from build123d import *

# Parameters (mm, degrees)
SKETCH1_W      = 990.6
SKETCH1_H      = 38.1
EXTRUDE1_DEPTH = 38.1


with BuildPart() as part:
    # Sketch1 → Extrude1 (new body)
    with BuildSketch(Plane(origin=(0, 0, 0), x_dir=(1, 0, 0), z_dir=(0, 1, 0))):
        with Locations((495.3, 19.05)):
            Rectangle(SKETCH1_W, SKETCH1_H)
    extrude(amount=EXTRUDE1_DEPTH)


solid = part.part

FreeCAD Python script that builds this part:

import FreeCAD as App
import Part
import Sketcher
Q = App.Units.Quantity

doc = App.newDocument("Part")
body = doc.addObject("PartDesign::Body", "Body")

# Sketch on XZ plane
sketch1 = body.newObject("Sketcher::SketchObject", "Sketch")
sketch1.AttachmentSupport = (doc.getObject("XZ_Plane"), [""])
sketch1.MapMode = "FlatFace"
sketch1.addGeometry([
    Part.LineSegment(App.Vector(0, -38, 0), App.Vector(0, 0, 0)),
    Part.LineSegment(App.Vector(0, 0, 0), App.Vector(991, 0, 0)),
    Part.LineSegment(App.Vector(991, 0, 0), App.Vector(991, -38, 0)),
    Part.LineSegment(App.Vector(991, -38, 0), App.Vector(0, -38, 0)),
], False)
sketch1.addConstraint([
    Sketcher.Constraint("Coincident", 0, 2, 1, 1),
    Sketcher.Constraint("Coincident", 1, 2, 2, 1),
    Sketcher.Constraint("Coincident", 2, 2, 3, 1),
    Sketcher.Constraint("Coincident", 3, 2, 0, 1),
    Sketcher.Constraint("Vertical", 0),
    Sketcher.Constraint("Horizontal", 1),
    Sketcher.Constraint("Vertical", 2),
    Sketcher.Constraint("Horizontal", 3),
    Sketcher.Constraint("Coincident", 0, 2, -1, 1),
    Sketcher.Constraint("DistanceX", 1, 1, 1, 2, Q("39 in")),
    Sketcher.Constraint("DistanceY", 0, 1, 0, 2, Q("1.5 in")),
])
pad1 = body.newObject("PartDesign::Pad", "Pad")
pad1.Profile = sketch1
pad1.Length = Q("1.5 in")
pad1.Reversed = True

doc.recompute()
